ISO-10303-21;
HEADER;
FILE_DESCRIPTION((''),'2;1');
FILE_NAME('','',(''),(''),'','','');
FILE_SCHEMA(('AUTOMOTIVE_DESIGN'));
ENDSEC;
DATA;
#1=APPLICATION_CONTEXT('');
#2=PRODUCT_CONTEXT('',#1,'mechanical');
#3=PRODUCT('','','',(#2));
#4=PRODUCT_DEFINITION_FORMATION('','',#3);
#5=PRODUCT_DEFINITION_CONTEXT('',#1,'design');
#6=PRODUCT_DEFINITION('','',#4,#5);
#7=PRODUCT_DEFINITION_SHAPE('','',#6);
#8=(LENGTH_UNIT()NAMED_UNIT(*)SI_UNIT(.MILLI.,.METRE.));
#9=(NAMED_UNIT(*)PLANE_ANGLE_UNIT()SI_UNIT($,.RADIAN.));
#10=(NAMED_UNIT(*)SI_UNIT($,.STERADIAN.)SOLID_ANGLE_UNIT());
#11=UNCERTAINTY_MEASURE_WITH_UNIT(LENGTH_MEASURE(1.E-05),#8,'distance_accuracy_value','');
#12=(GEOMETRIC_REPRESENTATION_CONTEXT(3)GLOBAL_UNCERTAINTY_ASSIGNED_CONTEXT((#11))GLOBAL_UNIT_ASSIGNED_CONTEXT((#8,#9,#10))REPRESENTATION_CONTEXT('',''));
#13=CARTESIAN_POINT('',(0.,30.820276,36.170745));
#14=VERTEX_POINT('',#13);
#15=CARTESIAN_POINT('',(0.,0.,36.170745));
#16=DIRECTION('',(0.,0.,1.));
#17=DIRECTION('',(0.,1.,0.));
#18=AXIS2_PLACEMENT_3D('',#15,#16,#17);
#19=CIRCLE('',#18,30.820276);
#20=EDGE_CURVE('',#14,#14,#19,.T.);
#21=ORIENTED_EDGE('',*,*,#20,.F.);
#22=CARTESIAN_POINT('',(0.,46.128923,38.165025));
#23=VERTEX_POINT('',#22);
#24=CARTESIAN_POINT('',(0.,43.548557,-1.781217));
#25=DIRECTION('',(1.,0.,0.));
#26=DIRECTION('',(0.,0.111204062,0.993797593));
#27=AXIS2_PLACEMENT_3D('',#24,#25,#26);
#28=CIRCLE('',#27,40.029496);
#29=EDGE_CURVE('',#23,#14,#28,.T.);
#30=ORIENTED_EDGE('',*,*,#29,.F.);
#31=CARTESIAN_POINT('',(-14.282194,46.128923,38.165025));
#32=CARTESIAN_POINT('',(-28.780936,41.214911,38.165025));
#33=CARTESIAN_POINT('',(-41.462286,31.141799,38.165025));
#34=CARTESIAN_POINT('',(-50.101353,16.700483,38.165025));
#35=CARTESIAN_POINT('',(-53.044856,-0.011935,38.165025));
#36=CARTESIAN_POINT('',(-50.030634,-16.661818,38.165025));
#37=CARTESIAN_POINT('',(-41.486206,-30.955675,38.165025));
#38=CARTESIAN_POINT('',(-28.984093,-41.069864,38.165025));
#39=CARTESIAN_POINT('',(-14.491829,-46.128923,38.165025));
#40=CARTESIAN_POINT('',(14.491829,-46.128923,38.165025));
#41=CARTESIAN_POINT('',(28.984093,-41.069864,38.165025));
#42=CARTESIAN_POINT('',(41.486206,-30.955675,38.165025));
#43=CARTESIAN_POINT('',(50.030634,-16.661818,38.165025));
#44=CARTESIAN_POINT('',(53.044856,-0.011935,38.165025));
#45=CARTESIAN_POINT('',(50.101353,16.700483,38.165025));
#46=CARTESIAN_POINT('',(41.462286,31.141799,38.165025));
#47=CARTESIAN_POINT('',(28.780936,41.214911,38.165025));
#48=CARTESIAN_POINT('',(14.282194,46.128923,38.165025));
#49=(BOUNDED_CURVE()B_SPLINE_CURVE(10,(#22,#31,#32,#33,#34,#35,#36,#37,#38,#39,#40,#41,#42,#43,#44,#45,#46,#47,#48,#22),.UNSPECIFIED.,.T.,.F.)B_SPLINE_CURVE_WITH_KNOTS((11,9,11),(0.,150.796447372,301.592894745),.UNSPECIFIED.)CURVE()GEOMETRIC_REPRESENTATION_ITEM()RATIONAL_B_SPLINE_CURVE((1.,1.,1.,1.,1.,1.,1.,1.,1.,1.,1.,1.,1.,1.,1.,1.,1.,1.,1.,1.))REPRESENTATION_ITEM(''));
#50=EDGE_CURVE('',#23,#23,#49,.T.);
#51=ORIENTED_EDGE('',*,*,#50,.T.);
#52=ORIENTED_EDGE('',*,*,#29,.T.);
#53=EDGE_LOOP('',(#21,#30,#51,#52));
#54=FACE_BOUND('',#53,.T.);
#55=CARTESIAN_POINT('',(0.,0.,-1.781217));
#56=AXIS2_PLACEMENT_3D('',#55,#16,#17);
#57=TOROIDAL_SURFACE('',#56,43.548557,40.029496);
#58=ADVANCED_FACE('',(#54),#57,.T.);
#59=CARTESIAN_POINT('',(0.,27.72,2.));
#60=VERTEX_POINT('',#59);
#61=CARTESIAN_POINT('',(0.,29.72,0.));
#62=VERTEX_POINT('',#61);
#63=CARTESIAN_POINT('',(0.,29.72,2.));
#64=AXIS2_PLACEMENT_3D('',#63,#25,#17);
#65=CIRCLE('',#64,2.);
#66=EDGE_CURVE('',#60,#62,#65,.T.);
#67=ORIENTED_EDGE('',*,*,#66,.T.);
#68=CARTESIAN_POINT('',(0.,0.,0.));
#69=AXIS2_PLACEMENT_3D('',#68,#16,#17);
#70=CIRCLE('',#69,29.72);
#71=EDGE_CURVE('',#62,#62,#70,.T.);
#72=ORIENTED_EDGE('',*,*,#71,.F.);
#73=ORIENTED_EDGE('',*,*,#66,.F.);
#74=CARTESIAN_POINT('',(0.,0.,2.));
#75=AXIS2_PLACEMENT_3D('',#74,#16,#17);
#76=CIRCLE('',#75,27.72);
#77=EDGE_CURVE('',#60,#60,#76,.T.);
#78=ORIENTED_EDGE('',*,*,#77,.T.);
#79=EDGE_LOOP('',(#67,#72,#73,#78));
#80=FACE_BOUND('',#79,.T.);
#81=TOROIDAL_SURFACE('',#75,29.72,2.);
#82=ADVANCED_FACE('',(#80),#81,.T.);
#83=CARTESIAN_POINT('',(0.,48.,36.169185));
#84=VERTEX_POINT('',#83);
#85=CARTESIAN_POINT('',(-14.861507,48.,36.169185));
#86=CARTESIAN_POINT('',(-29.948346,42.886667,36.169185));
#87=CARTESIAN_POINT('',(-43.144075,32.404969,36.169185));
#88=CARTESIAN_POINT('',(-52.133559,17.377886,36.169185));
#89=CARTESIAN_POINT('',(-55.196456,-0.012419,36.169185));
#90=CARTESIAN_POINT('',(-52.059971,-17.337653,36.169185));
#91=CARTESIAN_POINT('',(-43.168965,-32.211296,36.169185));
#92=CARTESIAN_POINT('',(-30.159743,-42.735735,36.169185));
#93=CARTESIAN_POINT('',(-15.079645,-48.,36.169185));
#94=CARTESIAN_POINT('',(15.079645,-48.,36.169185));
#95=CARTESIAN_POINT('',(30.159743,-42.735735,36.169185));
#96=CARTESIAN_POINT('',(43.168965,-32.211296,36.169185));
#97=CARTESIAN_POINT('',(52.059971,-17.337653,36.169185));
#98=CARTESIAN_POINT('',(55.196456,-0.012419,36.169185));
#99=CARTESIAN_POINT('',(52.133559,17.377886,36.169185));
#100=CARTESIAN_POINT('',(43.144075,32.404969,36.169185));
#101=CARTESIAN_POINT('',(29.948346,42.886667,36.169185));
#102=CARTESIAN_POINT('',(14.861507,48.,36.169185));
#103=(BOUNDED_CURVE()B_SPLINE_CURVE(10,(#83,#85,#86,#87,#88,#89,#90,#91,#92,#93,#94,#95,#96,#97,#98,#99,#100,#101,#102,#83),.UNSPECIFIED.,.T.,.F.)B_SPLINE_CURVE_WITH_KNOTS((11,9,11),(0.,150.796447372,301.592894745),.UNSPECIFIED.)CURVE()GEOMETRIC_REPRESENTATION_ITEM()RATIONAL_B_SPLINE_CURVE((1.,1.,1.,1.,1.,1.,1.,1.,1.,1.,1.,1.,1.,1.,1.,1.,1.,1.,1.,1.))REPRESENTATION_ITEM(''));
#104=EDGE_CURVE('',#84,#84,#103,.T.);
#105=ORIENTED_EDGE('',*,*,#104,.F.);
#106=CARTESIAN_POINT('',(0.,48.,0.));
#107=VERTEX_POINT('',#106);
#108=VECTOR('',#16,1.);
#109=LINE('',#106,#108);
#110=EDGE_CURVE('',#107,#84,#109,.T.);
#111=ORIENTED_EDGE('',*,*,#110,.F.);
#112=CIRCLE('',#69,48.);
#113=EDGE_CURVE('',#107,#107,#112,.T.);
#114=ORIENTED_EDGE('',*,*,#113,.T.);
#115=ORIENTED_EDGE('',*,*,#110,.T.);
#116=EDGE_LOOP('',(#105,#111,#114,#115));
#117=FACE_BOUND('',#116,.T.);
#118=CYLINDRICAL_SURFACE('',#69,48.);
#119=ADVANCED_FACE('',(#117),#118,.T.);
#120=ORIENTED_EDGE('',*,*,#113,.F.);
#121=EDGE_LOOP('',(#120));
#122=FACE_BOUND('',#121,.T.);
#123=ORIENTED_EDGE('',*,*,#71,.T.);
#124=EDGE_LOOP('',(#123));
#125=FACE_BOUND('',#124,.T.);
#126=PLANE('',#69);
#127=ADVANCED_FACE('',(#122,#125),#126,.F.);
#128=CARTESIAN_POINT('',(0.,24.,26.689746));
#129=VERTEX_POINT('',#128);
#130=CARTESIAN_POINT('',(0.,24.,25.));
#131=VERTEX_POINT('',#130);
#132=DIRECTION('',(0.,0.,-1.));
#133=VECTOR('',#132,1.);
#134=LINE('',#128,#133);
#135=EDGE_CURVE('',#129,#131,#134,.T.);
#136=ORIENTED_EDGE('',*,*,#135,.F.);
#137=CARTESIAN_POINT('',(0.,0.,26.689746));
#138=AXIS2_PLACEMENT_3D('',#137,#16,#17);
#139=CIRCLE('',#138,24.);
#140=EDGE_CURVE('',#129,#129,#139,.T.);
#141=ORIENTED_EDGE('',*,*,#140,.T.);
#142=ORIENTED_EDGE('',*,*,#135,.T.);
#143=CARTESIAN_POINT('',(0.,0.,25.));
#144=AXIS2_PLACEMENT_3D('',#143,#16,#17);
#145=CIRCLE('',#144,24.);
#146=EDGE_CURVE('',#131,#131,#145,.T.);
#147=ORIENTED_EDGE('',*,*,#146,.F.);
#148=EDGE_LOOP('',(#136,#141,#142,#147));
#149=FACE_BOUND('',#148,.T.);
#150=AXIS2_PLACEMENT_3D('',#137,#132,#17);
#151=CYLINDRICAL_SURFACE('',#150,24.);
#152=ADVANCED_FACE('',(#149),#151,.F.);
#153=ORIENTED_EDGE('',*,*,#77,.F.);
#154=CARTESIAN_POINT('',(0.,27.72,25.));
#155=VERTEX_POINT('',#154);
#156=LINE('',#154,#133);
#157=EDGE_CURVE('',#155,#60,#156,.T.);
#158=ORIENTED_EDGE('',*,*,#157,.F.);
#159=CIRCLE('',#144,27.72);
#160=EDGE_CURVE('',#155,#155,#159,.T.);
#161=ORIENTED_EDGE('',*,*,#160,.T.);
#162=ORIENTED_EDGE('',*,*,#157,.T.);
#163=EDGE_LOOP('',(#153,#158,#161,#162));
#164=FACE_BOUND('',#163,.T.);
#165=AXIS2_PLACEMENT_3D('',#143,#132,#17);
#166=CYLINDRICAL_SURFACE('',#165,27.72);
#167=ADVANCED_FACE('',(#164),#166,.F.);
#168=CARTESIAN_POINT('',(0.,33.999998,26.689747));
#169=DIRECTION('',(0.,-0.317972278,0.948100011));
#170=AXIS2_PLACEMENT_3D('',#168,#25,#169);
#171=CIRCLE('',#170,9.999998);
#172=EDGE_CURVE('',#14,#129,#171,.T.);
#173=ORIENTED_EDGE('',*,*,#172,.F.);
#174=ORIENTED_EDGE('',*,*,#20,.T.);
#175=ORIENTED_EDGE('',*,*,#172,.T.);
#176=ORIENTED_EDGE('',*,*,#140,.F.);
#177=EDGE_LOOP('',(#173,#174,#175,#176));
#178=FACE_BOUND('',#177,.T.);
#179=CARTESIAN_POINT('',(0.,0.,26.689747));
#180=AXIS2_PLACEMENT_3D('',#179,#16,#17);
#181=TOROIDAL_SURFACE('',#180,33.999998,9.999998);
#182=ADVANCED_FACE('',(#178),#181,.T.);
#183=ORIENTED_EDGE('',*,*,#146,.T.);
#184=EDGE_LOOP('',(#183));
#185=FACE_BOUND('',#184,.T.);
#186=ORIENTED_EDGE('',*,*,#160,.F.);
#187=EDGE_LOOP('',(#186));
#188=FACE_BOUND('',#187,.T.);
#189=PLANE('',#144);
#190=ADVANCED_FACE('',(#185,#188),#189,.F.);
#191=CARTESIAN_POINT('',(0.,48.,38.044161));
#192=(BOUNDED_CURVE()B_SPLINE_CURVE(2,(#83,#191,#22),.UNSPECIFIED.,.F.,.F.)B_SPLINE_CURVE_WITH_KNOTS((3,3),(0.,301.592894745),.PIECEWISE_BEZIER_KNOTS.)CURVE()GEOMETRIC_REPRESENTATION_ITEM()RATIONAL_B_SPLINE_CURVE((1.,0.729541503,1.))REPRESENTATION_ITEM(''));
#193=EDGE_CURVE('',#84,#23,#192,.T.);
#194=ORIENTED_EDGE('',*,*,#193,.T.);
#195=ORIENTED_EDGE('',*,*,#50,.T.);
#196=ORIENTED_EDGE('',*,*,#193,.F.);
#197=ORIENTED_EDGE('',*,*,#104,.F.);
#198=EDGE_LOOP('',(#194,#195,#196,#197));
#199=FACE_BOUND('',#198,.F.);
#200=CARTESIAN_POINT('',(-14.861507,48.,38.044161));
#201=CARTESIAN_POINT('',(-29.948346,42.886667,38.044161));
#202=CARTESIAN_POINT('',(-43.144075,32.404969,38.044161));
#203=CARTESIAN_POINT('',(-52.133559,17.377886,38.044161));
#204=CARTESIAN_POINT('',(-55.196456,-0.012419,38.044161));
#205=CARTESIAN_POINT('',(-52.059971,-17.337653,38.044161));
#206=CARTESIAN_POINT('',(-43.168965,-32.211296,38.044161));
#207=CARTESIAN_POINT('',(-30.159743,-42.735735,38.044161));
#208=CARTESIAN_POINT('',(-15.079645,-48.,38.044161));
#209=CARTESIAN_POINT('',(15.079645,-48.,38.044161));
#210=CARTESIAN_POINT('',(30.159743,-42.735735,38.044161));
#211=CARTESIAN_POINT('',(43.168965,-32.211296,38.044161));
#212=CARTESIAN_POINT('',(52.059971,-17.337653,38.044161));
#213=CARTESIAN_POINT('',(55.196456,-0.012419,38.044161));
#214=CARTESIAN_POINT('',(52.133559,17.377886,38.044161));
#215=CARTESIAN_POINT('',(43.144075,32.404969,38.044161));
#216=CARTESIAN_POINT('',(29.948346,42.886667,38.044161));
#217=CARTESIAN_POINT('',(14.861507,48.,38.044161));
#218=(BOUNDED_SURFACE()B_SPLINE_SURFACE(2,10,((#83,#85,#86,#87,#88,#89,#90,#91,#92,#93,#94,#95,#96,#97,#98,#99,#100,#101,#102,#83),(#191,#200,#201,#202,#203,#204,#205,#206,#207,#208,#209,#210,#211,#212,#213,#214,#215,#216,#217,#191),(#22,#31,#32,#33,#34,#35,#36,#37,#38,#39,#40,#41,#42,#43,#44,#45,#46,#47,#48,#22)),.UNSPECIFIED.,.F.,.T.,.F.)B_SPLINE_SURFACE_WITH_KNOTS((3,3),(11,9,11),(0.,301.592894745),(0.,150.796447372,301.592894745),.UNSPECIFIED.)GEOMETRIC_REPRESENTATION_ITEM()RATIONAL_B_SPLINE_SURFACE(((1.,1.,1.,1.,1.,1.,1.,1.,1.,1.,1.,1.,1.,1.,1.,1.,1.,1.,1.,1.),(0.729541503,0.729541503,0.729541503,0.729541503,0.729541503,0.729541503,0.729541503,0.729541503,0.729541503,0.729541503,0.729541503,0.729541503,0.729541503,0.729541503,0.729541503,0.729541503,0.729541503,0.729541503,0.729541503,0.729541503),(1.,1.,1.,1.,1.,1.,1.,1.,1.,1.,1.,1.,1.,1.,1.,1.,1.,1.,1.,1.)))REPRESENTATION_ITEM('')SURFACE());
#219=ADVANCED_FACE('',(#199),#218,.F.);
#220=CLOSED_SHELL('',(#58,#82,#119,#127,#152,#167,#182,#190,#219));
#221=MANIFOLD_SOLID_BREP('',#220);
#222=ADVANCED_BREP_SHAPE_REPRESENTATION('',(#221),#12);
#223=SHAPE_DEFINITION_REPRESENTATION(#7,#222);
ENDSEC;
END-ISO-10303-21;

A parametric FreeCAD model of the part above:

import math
import FreeCAD as App
import Part
import Sketcher

V = App.Vector


def edges_at(feature, points):
    """Names of the edges that pass closest to the given points."""
    edges = feature.Shape.Edges
    near = lambda p: min(range(len(edges)), key=lambda i: edges[i].distToShape(Part.Vertex(*p))[0])
    return sorted({f"Edge{near(p) + 1}" for p in points})

doc = App.newDocument("Part")
body = doc.addObject("PartDesign::Body", "Body")

# Sketch on YZ plane
sketch1 = body.newObject("Sketcher::SketchObject", "Sketch")
sketch1.AttachmentSupport = (doc.getObject("YZ_Plane"), [""])
sketch1.MapMode = "FlatFace"
sketch1.addGeometry([
    Part.LineSegment(V(27.7, 25, 0), V(27.7, 0, 0)),  # 0
    Part.LineSegment(V(27.7, 0, 0), V(48, 0, 0)),  # 1
    Part.LineSegment(V(48, 0, 0), V(48, 38, 0)),  # 2
    Part.ArcOfCircle(Part.Circle(V(43.5, -1.8, 0), V(0, 0, 1), 40), math.radians(84), math.radians(109)),  # 3
    Part.ArcOfCircle(Part.Circle(V(34, 26.7, 0), V(0, 0, 1), 10), math.radians(109), math.radians(180)),  # 4
    Part.LineSegment(V(24, 26.7, 0), V(24, 25, 0)),  # 5
    Part.LineSegment(V(24, 25, 0), V(27.7, 25, 0)),  # 6
], False)
sketch1.addConstraint([
    Sketcher.Constraint("Coincident", 0, 2, 1, 1),
    Sketcher.Constraint("Coincident", 1, 2, 2, 1),
    Sketcher.Constraint("Coincident", 2, 2, 3, 1),
    Sketcher.Constraint("Tangent", 3, 2, 4, 1),
    Sketcher.Constraint("Tangent", 4, 2, 5, 1),
    Sketcher.Constraint("Coincident", 5, 2, 6, 1),
    Sketcher.Constraint("Coincident", 6, 2, 0, 1),
    Sketcher.Constraint("Vertical", 0),
    Sketcher.Constraint("Horizontal", 1),
    Sketcher.Constraint("Vertical", 2),
    Sketcher.Constraint("Vertical", 5),
    Sketcher.Constraint("Horizontal", 6),
    Sketcher.Constraint("PointOnObject", 0, 2, -1),
    Sketcher.Constraint("Radius", 4, 9.999998),
    Sketcher.Constraint("DistanceY", 0, 2, 0, 1, 25.0),
    Sketcher.Constraint("DistanceY", 2, 1, 2, 2, 38.0),
    Sketcher.Constraint("DistanceX", -1, 1, 4, 3, 33.999998),
    Sketcher.Constraint("DistanceX", -1, 1, 1, 2, 48.0),
    Sketcher.Constraint("DistanceX", 1, 1, 1, 2, 20.28),
    Sketcher.Constraint("Radius", 3, 40.029496),
    Sketcher.Constraint("DistanceY", 4, 3, 3, 2, 9.480998),
])
revolution = body.newObject("PartDesign::Revolution", "Revolution")
revolution.Profile = sketch1
revolution.ReferenceAxis = (sketch1, ["V_Axis"])
revolution.Angle = 360
doc.recompute()

fillet = body.newObject("PartDesign::Fillet", "Fillet")
fillet.Base = (revolution, edges_at(revolution, [(0, -48, 38), (0, -27.72, 0)]))
fillet.Radius = 2

doc.recompute()
